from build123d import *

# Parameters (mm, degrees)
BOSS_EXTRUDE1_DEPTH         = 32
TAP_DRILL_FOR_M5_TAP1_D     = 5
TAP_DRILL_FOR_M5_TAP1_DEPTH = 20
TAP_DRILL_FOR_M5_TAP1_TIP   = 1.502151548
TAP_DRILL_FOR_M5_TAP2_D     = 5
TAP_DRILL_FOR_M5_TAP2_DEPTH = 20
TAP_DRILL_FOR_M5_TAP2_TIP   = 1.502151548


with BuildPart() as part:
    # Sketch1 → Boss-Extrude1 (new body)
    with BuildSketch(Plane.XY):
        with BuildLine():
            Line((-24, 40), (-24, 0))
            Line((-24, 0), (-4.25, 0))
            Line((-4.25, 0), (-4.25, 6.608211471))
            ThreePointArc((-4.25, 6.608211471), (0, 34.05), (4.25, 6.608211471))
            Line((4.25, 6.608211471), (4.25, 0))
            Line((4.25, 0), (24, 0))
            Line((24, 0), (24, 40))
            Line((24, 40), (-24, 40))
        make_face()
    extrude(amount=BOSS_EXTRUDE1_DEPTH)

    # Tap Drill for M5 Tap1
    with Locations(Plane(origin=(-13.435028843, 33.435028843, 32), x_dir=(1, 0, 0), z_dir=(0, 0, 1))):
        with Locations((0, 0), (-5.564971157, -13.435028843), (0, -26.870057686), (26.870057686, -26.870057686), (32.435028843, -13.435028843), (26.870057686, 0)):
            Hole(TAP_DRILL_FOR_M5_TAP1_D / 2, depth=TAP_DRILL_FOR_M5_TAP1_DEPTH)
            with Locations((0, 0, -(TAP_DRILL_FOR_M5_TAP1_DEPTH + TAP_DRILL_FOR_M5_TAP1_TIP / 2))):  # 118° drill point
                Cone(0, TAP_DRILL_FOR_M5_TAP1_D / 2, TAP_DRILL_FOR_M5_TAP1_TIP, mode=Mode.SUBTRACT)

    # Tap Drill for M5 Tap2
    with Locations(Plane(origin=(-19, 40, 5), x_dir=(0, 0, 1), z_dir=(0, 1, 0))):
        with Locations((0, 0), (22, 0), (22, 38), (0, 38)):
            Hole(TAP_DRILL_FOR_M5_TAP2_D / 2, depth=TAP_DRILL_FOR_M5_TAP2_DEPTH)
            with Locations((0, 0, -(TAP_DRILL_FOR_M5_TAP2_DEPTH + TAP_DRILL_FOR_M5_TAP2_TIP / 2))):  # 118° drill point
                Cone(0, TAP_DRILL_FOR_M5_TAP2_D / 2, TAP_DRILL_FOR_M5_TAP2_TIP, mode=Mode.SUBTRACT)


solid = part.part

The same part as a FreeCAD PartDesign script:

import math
import FreeCAD as App
import Part
import Sketcher

doc = App.newDocument("Part")
params = doc.addObject("Spreadsheet::Sheet", "Params")
for row, (alias, value) in enumerate([
    ("sketch1_width", "48 mm"),
    ("sketch1_height", "40 mm"),
    ("sketch1_radius", "14.05 mm"),
    ("sketch1_width2", "19.75 mm"),
    ("pad1_length", "32 mm"),
    ("sketch2_diameter", "5 mm"),
    ("hole_diameter", "5 mm"),
    ("hole_depth", "20 mm"),
    ("sketch3_diameter", "5 mm"),
    ("hole2_diameter", "5 mm"),
    ("hole2_depth", "20 mm"),
], start=1):
    params.set(f"A{row}", alias)
    params.set(f"B{row}", "=" + value)
    params.setAlias(f"B{row}", alias)

body = doc.addObject("PartDesign::Body", "Body")

# Sketch on XY plane
sketch1 = body.newObject("Sketcher::SketchObject", "Sketch")
sketch1.AttachmentSupport = (doc.getObject("XY_Plane"), [""])
sketch1.MapMode = "FlatFace"
sketch1.addGeometry(Part.LineSegment(App.Vector(-24, 40, 0), App.Vector(-24, 0, 0)), False)
sketch1.addGeometry(Part.LineSegment(App.Vector(-24, 0, 0), App.Vector(-4, 0, 0)), False)
sketch1.addGeometry(Part.LineSegment(App.Vector(-4, 0, 0), App.Vector(-4, 7, 0)), False)
sketch1.addGeometry(Part.ArcOfCircle(Part.Circle(App.Vector(0, 20, 0), App.Vector(0, 0, 1), 14), math.radians(-72), math.radians(252)), False)
sketch1.addGeometry(Part.LineSegment(App.Vector(4, 7, 0), App.Vector(4, 0, 0)), False)
sketch1.addGeometry(Part.LineSegment(App.Vector(4, 0, 0), App.Vector(24, 0, 0)), False)
sketch1.addGeometry(Part.LineSegment(App.Vector(24, 0, 0), App.Vector(24, 40, 0)), False)
sketch1.addGeometry(Part.LineSegment(App.Vector(24, 40, 0), App.Vector(-24, 40, 0)), False)
sketch1.addConstraint(Sketcher.Constraint("Coincident", 0, 2, 1, 1))
sketch1.addConstraint(Sketcher.Constraint("Coincident", 1, 2, 2, 1))
sketch1.addConstraint(Sketcher.Constraint("Coincident", 2, 2, 3, 2))
sketch1.addConstraint(Sketcher.Constraint("Coincident", 3, 1, 4, 1))
sketch1.addConstraint(Sketcher.Constraint("Coincident", 4, 2, 5, 1))
sketch1.addConstraint(Sketcher.Constraint("Coincident", 5, 2, 6, 1))
sketch1.addConstraint(Sketcher.Constraint("Coincident", 6, 2, 7, 1))
sketch1.addConstraint(Sketcher.Constraint("Coincident", 7, 2, 0, 1))
sketch1.addConstraint(Sketcher.Constraint("Vertical", 0))
sketch1.addConstraint(Sketcher.Constraint("Horizontal", 1))
sketch1.addConstraint(Sketcher.Constraint("Vertical", 2))
sketch1.addConstraint(Sketcher.Constraint("Vertical", 4))
sketch1.addConstraint(Sketcher.Constraint("Horizontal", 5))
sketch1.addConstraint(Sketcher.Constraint("Vertical", 6))
sketch1.addConstraint(Sketcher.Constraint("Horizontal", 7))
sketch1.addConstraint(Sketcher.Constraint("Symmetric", 1, 2, 4, 2, -1, 1))
sketch1.addConstraint(Sketcher.Constraint("Symmetric", 0, 2, 5, 2, -2))
sketch1.addConstraint(Sketcher.Constraint("PointOnObject", 3, 3, -2))
sketch1.addConstraint(Sketcher.Constraint("DistanceX", 7, 2, 7, 1, 48.0))
sketch1.addConstraint(Sketcher.Constraint("DistanceY", 0, 2, 0, 1, 40.0))
sketch1.addConstraint(Sketcher.Constraint("Radius", 3, 14.05))
sketch1.addConstraint(Sketcher.Constraint("DistanceY", -1, 1, 3, 3, 20.0))
sketch1.addConstraint(Sketcher.Constraint("DistanceX", 1, 1, 1, 2, 19.75))
sketch1.setExpression("Constraints[18]", "Params.sketch1_width")
sketch1.setExpression("Constraints[19]", "Params.sketch1_height")
sketch1.setExpression("Constraints[20]", "Params.sketch1_radius")
sketch1.setExpression("Constraints[22]", "Params.sketch1_width2")
pad1 = body.newObject("PartDesign::Pad", "Pad")
pad1.Profile = sketch1
pad1.setExpression("Length", "Params.pad1_length")

# Sketch on XY plane
sketch2 = body.newObject("Sketcher::SketchObject", "Sketch001")
sketch2.AttachmentSupport = (doc.getObject("XY_Plane"), [""])
sketch2.MapMode = "FlatFace"
sketch2.AttachmentOffset = App.Placement(App.Vector(0, 0, 32), App.Rotation())
sketch2.addGeometry(Part.Circle(App.Vector(-13.4, 33.4, 0), App.Vector(0, 0, 1), 2.5), False)
sketch2.addGeometry(Part.Circle(App.Vector(-19, 20, 0), App.Vector(0, 0, 1), 2.5), False)
sketch2.addGeometry(Part.Circle(App.Vector(-13.4, 6.6, 0), App.Vector(0, 0, 1), 2.5), False)
sketch2.addGeometry(Part.Circle(App.Vector(13.4, 6.6, 0), App.Vector(0, 0, 1), 2.5), False)
sketch2.addGeometry(Part.Circle(App.Vector(19, 20, 0), App.Vector(0, 0, 1), 2.5), False)
sketch2.addGeometry(Part.Circle(App.Vector(13.4, 33.4, 0), App.Vector(0, 0, 1), 2.5), False)
sketch2.addConstraint(Sketcher.Constraint("Equal", 0, 1))
sketch2.addConstraint(Sketcher.Constraint("Equal", 1, 2))
sketch2.addConstraint(Sketcher.Constraint("Equal", 2, 3))
sketch2.addConstraint(Sketcher.Constraint("Equal", 3, 4))
sketch2.addConstraint(Sketcher.Constraint("Equal", 4, 5))
sketch2.addConstraint(Sketcher.Constraint("Symmetric", 2, 3, 3, 3, -2))
sketch2.addConstraint(Sketcher.Constraint("Symmetric", 1, 3, 4, 3, -2))
sketch2.addConstraint(Sketcher.Constraint("Symmetric", 0, 3, 5, 3, -2))
sketch2.addConstraint(Sketcher.Constraint("Vertical", 0, 3, 2, 3))
sketch2.addConstraint(Sketcher.Constraint("Diameter", 0, 5.0))
sketch2.addConstraint(Sketcher.Constraint("DistanceX", 1, 3, -1, 1, 19.0))
sketch2.addConstraint(Sketcher.Constraint("DistanceY", -1, 1, 1, 3, 20.0))
sketch2.addConstraint(Sketcher.Constraint("DistanceX", 0, 3, -1, 1, 13.435029))
sketch2.addConstraint(Sketcher.Constraint("DistanceY", -1, 1, 0, 3, 33.435029))
sketch2.addConstraint(Sketcher.Constraint("DistanceY", -1, 1, 2, 3, 6.564971))
sketch2.setExpression("Constraints[9]", "Params.sketch2_diameter")
doc.recompute()
hole = body.newObject("PartDesign::Hole", "Hole")
hole.Profile = sketch2
hole.ThreadType = "None"
hole.setExpression("Diameter", "Params.hole_diameter")
hole.DepthType = "Dimension"
hole.setExpression("Depth", "Params.hole_depth")
hole.DrillPoint = "Angled"
hole.DrillPointAngle = 118

# Sketch on XZ plane
sketch3 = body.newObject("Sketcher::SketchObject", "Sketch002")
sketch3.AttachmentSupport = (doc.getObject("XZ_Plane"), [""])
sketch3.MapMode = "FlatFace"
sketch3.AttachmentOffset = App.Placement(App.Vector(0, 0, -40), App.Rotation())
sketch3.addGeometry(Part.Circle(App.Vector(-19, 5, 0), App.Vector(0, 0, 1), 2.5), False)
sketch3.addGeometry(Part.Circle(App.Vector(-19, 27, 0), App.Vector(0, 0, 1), 2.5), False)
sketch3.addGeometry(Part.Circle(App.Vector(19, 27, 0), App.Vector(0, 0, 1), 2.5), False)
sketch3.addGeometry(Part.Circle(App.Vector(19, 5, 0), App.Vector(0, 0, 1), 2.5), False)
sketch3.addConstraint(Sketcher.Constraint("Equal", 0, 1))
sketch3.addConstraint(Sketcher.Constraint("Equal", 1, 2))
sketch3.addConstraint(Sketcher.Constraint("Equal", 2, 3))
sketch3.addConstraint(Sketcher.Constraint("Symmetric", 1, 3, 2, 3, -2))
sketch3.addConstraint(Sketcher.Constraint("Symmetric", 0, 3, 3, 3, -2))
sketch3.addConstraint(Sketcher.Constraint("Vertical", 0, 3, 1, 3))
sketch3.addConstraint(Sketcher.Constraint("Diameter", 0, 5.0))
sketch3.addConstraint(Sketcher.Constraint("DistanceX", 0, 3, -1, 1, 19.0))
sketch3.addConstraint(Sketcher.Constraint("DistanceY", -1, 1, 0, 3, 5.0))
sketch3.addConstraint(Sketcher.Constraint("DistanceY", -1, 1, 1, 3, 27.0))
sketch3.setExpression("Constraints[6]", "Params.sketch3_diameter")
doc.recompute()
hole2 = body.newObject("PartDesign::Hole", "Hole001")
hole2.Profile = sketch3
hole2.ThreadType = "None"
hole2.setExpression("Diameter", "Params.hole2_diameter")
hole2.DepthType = "Dimension"
hole2.setExpression("Depth", "Params.hole2_depth")
hole2.DrillPoint = "Angled"
hole2.DrillPointAngle = 118
hole2.Reversed = True

doc.recompute()
